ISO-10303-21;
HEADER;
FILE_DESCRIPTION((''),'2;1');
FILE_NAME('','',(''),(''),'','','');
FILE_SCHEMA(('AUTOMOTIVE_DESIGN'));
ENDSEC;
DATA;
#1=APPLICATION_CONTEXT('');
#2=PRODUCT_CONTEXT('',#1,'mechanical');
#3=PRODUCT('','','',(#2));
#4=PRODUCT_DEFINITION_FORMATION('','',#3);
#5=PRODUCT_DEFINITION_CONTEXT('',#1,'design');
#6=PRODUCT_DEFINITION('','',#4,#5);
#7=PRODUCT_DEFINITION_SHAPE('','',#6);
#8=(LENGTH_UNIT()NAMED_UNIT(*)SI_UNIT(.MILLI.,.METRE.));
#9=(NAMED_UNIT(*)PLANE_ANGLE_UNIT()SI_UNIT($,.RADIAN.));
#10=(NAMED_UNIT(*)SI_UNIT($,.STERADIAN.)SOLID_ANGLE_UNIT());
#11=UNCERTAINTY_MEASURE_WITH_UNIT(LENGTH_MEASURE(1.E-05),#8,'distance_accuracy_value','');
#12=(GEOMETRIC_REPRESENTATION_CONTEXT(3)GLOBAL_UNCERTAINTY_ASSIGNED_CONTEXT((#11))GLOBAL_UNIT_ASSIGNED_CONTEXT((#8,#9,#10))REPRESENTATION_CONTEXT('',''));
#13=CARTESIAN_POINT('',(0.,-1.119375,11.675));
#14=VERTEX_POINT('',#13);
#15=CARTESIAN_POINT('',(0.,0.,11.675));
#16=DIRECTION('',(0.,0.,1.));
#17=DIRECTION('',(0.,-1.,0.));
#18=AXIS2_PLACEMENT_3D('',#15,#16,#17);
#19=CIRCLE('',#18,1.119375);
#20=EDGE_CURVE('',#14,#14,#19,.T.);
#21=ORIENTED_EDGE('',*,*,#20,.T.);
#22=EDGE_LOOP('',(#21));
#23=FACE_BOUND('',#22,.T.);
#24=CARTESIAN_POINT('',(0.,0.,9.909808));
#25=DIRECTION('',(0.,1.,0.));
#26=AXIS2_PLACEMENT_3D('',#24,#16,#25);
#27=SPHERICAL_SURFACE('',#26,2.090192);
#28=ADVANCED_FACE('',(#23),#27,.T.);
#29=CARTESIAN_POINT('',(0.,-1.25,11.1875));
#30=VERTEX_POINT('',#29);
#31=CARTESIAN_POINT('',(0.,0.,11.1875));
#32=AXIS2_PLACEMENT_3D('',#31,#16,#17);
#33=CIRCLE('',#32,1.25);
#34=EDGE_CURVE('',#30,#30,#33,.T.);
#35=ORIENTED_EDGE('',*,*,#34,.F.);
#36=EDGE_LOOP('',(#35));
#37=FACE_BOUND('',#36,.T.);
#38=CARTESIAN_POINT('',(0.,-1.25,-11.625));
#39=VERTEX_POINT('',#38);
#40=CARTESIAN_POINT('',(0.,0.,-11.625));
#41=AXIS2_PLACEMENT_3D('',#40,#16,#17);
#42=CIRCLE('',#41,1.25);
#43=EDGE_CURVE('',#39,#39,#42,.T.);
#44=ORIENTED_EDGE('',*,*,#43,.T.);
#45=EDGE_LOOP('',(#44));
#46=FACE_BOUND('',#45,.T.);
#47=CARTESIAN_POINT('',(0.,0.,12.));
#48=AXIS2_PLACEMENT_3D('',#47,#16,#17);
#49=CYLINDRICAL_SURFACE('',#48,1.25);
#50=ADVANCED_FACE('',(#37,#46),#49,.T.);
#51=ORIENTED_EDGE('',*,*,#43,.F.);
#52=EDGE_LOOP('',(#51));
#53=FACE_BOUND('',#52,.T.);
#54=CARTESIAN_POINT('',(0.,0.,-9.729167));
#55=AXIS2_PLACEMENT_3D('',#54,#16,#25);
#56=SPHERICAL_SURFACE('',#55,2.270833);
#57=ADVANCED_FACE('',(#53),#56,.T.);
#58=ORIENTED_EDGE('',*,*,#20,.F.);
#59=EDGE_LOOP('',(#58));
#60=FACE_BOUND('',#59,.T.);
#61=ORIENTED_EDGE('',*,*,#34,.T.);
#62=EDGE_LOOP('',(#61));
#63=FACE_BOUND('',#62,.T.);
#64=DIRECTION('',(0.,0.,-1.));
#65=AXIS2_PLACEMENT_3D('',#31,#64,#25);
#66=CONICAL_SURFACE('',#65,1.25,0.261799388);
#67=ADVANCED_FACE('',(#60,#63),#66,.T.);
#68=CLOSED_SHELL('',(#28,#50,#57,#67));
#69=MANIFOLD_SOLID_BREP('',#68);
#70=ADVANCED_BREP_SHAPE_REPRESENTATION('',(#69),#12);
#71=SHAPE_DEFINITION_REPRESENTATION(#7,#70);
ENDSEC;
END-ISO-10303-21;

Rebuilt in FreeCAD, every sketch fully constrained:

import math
import FreeCAD as App
import Part
import Sketcher
Q = App.Units.Quantity

doc = App.newDocument("Part")
params = doc.addObject("Spreadsheet::Sheet", "Params")
for row, (alias, value) in enumerate([
    ("sketch1_height", "24 mm"),
    ("revolution_angle", "360 deg"),
], start=1):
    params.set(f"A{row}", alias)
    params.set(f"B{row}", "=" + value)
    params.setAlias(f"B{row}", alias)

body = doc.addObject("PartDesign::Body", "Body")

sketch1 = body.newObject("Sketcher::SketchObject", "Sketch")
sketch1.AttachmentSupport = (doc.getObject("YZ_Plane"), [""])
sketch1.MapMode = "FlatFace"
sketch1.addGeometry(Part.LineSegment(App.Vector(0, 12, 0), App.Vector(0, -12, 0)), False)
sketch1.addGeometry(Part.ArcOfCircle(Part.Circle(App.Vector(0, -9.729167, 0), App.Vector(0, 0, 1), 2.270833), math.radians(-90), math.radians(-56.601511)), False)
sketch1.addGeometry(Part.LineSegment(App.Vector(1.25, -11.625, 0), App.Vector(1.25, 11.1875, 0)), False)
sketch1.addGeometry(Part.LineSegment(App.Vector(1.25, 11.1875, 0), App.Vector(1.119375, 11.675, 0)), False)
sketch1.addGeometry(Part.ArcOfCircle(Part.Circle(App.Vector(0, 9.909808, 0), App.Vector(0, 0, 1), 2.090192), math.radians(57.619678), math.radians(90)), False)
sketch1.addConstraint(Sketcher.Constraint("Coincident", 0, 2, 1, 1))
sketch1.addConstraint(Sketcher.Constraint("Coincident", 1, 2, 2, 1))
sketch1.addConstraint(Sketcher.Constraint("Coincident", 2, 2, 3, 1))
sketch1.addConstraint(Sketcher.Constraint("Coincident", 3, 2, 4, 1))
sketch1.addConstraint(Sketcher.Constraint("Coincident", 4, 2, 0, 1))
sketch1.addConstraint(Sketcher.Constraint("Vertical", 0))
sketch1.addConstraint(Sketcher.Constraint("Vertical", 2))
sketch1.addConstraint(Sketcher.Constraint("Symmetric", 0, 2, 4, 2, -1, 1))
sketch1.addConstraint(Sketcher.Constraint("PointOnObject", 1, 3, -2))
sketch1.addConstraint(Sketcher.Constraint("PointOnObject", 4, 3, -2))
sketch1.addConstraint(Sketcher.Constraint("DistanceY", 0, 2, 0, 1, 24.0))
sketch1.addConstraint(Sketcher.Constraint("Angle", 3, Q("105 deg")))
sketch1.addConstraint(Sketcher.Constraint("DistanceY", 1, 2, 3, 2, 23.3))
sketch1.addConstraint(Sketcher.Constraint("DistanceX", -1, 1, 1, 2, 1.25))
sketch1.addConstraint(Sketcher.Constraint("DistanceY", 2, 1, 2, 2, 22.8125))
sketch1.addConstraint(Sketcher.Constraint("DistanceY", 1, 2, -1, 1, 11.625))
sketch1.setExpression("Constraints[10]", "Params.sketch1_height")
revolution = body.newObject("PartDesign::Revolution", "Revolution")
revolution.Profile = sketch1
revolution.ReferenceAxis = (sketch1, ["V_Axis"])
revolution.setExpression("Angle", "Params.revolution_angle")

doc.recompute()
